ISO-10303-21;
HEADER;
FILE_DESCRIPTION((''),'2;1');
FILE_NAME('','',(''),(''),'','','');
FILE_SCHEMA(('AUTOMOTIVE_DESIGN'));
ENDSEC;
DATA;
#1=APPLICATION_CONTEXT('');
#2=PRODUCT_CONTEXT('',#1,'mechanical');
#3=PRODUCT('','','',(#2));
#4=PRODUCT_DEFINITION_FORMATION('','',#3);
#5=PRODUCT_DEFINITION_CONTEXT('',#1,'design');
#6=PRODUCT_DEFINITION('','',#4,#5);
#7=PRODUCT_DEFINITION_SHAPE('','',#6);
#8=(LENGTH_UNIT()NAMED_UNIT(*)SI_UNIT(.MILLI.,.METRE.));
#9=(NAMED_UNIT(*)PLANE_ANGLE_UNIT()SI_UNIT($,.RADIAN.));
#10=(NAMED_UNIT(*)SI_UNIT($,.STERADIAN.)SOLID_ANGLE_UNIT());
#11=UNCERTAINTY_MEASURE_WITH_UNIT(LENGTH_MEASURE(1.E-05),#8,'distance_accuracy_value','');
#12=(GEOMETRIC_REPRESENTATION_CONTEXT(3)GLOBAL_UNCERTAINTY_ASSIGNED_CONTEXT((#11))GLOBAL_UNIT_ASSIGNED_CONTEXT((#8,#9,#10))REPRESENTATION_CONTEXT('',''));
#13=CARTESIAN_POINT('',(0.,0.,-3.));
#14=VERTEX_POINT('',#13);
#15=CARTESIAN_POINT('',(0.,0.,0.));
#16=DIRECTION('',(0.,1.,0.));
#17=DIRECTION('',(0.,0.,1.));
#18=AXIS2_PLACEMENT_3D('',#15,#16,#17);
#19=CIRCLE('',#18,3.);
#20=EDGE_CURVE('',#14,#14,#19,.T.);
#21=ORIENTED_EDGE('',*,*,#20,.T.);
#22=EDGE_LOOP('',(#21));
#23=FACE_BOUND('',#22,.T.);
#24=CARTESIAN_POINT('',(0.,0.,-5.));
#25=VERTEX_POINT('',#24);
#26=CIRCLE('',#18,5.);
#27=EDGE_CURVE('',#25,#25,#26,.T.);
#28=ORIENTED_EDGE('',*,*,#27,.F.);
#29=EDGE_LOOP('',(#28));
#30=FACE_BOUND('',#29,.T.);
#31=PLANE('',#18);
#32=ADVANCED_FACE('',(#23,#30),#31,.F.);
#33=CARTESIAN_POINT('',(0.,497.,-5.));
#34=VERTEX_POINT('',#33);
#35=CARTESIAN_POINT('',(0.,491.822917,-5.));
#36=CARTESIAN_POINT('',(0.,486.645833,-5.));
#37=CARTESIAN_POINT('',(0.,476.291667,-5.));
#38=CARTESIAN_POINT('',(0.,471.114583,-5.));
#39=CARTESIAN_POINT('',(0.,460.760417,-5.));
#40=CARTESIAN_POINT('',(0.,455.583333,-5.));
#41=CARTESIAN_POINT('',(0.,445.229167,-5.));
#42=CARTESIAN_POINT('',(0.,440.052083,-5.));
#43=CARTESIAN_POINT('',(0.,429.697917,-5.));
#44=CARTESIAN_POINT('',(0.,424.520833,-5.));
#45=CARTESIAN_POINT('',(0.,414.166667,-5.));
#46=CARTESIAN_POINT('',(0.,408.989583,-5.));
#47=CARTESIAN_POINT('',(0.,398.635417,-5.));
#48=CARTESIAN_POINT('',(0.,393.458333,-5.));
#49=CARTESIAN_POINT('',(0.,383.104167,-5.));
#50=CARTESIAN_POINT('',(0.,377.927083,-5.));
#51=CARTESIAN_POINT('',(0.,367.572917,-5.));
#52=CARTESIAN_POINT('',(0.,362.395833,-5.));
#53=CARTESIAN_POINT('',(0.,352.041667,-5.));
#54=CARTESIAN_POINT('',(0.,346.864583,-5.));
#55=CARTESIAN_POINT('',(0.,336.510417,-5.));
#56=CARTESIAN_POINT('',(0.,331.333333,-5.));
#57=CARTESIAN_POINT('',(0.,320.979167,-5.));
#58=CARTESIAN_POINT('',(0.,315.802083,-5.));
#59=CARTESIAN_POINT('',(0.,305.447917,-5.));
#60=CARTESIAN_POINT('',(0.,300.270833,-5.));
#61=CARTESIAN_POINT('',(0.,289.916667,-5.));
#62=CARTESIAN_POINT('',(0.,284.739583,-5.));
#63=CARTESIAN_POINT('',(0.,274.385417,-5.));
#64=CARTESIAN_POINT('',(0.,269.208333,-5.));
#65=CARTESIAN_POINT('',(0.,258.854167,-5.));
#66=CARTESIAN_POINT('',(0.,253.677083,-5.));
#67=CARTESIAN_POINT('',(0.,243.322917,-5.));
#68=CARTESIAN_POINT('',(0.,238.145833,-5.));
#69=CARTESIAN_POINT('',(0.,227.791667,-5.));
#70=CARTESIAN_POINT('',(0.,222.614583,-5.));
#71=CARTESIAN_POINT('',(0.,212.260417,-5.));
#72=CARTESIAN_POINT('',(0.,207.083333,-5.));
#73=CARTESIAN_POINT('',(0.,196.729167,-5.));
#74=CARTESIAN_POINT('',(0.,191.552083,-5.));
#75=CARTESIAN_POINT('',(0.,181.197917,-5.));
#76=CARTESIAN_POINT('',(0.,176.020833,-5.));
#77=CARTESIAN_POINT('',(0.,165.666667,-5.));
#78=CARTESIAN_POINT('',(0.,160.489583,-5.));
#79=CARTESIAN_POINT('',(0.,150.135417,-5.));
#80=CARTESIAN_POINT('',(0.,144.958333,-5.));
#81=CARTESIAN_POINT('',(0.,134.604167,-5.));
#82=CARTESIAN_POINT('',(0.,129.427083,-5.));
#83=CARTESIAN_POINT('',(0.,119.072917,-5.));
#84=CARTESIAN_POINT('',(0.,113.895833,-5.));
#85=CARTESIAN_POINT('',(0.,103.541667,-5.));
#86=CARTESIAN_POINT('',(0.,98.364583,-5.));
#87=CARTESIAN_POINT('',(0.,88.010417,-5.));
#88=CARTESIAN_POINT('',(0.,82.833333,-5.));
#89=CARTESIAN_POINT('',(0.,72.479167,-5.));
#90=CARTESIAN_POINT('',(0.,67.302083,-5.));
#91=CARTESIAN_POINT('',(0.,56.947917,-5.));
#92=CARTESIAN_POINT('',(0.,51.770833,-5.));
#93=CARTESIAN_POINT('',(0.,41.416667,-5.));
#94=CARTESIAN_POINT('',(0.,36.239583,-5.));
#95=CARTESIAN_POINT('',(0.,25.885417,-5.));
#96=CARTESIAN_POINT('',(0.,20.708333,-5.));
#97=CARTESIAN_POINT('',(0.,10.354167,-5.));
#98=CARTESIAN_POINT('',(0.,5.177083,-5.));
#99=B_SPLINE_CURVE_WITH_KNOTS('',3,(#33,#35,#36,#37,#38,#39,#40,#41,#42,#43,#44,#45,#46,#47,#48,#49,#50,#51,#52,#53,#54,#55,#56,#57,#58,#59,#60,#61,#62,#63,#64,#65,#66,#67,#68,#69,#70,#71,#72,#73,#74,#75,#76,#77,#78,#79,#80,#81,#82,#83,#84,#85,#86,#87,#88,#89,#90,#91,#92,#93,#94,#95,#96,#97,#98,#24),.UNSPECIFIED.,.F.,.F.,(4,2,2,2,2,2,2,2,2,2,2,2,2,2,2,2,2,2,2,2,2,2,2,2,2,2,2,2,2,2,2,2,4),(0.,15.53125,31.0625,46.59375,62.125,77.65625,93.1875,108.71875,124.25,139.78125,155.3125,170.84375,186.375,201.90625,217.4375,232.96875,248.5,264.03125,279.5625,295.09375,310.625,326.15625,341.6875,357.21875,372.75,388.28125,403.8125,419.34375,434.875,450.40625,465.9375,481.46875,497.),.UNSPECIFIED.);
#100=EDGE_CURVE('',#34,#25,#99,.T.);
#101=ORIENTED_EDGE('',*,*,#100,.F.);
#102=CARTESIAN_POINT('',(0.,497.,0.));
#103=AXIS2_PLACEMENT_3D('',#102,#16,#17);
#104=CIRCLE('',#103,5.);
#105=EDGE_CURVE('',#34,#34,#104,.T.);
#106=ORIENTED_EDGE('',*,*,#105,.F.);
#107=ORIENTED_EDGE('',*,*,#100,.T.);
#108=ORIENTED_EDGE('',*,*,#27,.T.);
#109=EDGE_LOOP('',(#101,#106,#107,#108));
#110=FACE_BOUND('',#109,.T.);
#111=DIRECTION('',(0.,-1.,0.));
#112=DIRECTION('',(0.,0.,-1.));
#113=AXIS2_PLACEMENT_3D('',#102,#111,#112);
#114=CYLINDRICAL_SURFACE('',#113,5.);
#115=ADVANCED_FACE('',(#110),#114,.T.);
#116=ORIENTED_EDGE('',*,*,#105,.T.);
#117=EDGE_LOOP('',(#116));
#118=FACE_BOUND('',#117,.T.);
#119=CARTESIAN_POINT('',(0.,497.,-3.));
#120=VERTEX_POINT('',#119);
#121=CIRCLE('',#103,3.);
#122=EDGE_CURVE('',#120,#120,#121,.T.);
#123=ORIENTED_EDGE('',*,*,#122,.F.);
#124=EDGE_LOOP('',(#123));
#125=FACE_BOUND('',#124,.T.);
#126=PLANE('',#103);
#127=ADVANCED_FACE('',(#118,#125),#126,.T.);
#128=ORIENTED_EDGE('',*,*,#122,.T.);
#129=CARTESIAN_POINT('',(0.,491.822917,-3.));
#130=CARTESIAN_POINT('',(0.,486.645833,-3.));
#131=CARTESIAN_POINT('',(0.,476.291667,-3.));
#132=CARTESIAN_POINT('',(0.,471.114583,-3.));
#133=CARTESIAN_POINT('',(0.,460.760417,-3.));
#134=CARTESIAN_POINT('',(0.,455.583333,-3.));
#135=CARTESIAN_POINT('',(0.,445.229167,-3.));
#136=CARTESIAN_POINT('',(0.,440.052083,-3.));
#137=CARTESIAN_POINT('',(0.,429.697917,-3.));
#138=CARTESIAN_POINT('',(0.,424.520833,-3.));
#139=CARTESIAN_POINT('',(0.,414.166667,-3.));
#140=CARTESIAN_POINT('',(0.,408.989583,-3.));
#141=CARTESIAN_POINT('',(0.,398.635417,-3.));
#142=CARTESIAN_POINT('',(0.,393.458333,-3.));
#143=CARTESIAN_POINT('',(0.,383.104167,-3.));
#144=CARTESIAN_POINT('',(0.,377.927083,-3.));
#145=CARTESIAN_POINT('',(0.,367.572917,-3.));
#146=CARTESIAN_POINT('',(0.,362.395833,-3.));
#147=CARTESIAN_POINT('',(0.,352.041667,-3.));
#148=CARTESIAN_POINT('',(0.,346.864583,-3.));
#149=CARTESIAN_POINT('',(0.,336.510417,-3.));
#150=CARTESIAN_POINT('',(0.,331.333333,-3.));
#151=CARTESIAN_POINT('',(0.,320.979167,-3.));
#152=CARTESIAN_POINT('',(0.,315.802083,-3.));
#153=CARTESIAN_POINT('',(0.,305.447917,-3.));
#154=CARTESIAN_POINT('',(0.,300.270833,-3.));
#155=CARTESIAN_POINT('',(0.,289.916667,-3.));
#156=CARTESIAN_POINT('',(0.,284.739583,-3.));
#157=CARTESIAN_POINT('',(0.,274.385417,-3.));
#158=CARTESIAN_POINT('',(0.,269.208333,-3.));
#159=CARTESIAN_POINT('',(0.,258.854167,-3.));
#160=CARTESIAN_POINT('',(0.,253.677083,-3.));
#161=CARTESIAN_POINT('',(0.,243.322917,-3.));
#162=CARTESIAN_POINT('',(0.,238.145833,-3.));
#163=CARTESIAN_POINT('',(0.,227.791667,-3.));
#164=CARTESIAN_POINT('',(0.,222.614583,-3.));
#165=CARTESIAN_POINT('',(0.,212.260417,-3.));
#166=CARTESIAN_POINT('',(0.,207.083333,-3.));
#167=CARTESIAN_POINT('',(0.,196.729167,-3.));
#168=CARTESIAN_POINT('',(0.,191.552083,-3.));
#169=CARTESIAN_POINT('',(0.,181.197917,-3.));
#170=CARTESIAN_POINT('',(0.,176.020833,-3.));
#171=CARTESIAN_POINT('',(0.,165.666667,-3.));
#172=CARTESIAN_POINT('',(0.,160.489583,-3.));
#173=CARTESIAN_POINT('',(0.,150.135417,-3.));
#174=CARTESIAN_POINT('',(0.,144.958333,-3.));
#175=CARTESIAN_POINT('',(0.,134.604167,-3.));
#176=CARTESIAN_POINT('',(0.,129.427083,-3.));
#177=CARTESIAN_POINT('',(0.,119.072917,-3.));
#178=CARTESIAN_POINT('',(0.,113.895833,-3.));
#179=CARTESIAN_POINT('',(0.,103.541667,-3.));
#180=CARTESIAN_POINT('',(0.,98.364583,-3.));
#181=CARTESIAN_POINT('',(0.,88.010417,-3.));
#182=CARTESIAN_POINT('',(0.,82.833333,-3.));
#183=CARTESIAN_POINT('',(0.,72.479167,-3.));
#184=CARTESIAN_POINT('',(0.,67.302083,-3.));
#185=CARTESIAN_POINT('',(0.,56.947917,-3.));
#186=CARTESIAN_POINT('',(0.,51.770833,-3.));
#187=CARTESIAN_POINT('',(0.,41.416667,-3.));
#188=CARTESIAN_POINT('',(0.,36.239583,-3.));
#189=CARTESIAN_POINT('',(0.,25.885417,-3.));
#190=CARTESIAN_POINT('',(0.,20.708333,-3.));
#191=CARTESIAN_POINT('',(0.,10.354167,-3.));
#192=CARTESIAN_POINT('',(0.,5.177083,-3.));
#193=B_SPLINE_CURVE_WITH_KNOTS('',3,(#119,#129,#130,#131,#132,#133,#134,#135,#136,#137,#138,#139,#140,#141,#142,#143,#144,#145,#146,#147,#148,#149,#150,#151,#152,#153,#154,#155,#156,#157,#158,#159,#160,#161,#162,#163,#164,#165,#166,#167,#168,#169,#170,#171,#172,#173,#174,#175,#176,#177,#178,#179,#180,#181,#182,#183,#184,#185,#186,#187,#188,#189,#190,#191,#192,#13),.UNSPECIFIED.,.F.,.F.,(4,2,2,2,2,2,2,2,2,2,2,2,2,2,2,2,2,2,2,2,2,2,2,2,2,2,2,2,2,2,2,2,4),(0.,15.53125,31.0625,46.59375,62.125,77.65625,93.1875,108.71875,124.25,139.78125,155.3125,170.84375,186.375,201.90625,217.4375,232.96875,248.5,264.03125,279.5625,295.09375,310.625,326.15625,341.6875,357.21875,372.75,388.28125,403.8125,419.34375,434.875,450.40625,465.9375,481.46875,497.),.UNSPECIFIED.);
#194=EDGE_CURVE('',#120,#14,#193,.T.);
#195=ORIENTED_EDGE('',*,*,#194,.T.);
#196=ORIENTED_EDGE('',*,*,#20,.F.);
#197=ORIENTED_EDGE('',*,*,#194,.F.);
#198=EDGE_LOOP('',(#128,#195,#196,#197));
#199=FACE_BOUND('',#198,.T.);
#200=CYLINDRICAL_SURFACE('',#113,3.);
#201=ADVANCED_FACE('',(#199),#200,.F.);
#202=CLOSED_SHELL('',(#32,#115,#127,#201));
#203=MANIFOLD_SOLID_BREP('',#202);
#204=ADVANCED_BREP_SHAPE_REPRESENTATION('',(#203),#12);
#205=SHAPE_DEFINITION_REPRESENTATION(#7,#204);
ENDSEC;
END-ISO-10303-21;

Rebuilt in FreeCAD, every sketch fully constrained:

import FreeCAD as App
import Part
import Sketcher
from FreeCAD import Vector
Q = App.Units.Quantity

doc = App.newDocument("Part")
body = doc.addObject("PartDesign::Body", "Body")

# Sketch on XZ plane
sketch1 = body.newObject("Sketcher::SketchObject", "Sketch")
sketch1.AttachmentSupport = (doc.getObject("XZ_Plane"), [""])
sketch1.MapMode = "FlatFace"
sketch1.addGeometry([
    Part.Circle(Vector(0, 0, 0), Vector(0, 0, 1), 5),
    Part.Circle(Vector(0, 0, 0), Vector(0, 0, 1), 3),
], False)
sketch1.addConstraint([
    Sketcher.Constraint("Coincident", 0, 3, -1, 1),
    Sketcher.Constraint("Coincident", 1, 3, -1, 1),
    Sketcher.Constraint("Diameter", 0, Q("10 mm")),
    Sketcher.Constraint("Diameter", 1, Q("6 mm")),
])
pad1 = body.newObject("PartDesign::Pad", "Pad")
pad1.Profile = sketch1
pad1.Length = 497
pad1.Reversed = True

doc.recompute()
